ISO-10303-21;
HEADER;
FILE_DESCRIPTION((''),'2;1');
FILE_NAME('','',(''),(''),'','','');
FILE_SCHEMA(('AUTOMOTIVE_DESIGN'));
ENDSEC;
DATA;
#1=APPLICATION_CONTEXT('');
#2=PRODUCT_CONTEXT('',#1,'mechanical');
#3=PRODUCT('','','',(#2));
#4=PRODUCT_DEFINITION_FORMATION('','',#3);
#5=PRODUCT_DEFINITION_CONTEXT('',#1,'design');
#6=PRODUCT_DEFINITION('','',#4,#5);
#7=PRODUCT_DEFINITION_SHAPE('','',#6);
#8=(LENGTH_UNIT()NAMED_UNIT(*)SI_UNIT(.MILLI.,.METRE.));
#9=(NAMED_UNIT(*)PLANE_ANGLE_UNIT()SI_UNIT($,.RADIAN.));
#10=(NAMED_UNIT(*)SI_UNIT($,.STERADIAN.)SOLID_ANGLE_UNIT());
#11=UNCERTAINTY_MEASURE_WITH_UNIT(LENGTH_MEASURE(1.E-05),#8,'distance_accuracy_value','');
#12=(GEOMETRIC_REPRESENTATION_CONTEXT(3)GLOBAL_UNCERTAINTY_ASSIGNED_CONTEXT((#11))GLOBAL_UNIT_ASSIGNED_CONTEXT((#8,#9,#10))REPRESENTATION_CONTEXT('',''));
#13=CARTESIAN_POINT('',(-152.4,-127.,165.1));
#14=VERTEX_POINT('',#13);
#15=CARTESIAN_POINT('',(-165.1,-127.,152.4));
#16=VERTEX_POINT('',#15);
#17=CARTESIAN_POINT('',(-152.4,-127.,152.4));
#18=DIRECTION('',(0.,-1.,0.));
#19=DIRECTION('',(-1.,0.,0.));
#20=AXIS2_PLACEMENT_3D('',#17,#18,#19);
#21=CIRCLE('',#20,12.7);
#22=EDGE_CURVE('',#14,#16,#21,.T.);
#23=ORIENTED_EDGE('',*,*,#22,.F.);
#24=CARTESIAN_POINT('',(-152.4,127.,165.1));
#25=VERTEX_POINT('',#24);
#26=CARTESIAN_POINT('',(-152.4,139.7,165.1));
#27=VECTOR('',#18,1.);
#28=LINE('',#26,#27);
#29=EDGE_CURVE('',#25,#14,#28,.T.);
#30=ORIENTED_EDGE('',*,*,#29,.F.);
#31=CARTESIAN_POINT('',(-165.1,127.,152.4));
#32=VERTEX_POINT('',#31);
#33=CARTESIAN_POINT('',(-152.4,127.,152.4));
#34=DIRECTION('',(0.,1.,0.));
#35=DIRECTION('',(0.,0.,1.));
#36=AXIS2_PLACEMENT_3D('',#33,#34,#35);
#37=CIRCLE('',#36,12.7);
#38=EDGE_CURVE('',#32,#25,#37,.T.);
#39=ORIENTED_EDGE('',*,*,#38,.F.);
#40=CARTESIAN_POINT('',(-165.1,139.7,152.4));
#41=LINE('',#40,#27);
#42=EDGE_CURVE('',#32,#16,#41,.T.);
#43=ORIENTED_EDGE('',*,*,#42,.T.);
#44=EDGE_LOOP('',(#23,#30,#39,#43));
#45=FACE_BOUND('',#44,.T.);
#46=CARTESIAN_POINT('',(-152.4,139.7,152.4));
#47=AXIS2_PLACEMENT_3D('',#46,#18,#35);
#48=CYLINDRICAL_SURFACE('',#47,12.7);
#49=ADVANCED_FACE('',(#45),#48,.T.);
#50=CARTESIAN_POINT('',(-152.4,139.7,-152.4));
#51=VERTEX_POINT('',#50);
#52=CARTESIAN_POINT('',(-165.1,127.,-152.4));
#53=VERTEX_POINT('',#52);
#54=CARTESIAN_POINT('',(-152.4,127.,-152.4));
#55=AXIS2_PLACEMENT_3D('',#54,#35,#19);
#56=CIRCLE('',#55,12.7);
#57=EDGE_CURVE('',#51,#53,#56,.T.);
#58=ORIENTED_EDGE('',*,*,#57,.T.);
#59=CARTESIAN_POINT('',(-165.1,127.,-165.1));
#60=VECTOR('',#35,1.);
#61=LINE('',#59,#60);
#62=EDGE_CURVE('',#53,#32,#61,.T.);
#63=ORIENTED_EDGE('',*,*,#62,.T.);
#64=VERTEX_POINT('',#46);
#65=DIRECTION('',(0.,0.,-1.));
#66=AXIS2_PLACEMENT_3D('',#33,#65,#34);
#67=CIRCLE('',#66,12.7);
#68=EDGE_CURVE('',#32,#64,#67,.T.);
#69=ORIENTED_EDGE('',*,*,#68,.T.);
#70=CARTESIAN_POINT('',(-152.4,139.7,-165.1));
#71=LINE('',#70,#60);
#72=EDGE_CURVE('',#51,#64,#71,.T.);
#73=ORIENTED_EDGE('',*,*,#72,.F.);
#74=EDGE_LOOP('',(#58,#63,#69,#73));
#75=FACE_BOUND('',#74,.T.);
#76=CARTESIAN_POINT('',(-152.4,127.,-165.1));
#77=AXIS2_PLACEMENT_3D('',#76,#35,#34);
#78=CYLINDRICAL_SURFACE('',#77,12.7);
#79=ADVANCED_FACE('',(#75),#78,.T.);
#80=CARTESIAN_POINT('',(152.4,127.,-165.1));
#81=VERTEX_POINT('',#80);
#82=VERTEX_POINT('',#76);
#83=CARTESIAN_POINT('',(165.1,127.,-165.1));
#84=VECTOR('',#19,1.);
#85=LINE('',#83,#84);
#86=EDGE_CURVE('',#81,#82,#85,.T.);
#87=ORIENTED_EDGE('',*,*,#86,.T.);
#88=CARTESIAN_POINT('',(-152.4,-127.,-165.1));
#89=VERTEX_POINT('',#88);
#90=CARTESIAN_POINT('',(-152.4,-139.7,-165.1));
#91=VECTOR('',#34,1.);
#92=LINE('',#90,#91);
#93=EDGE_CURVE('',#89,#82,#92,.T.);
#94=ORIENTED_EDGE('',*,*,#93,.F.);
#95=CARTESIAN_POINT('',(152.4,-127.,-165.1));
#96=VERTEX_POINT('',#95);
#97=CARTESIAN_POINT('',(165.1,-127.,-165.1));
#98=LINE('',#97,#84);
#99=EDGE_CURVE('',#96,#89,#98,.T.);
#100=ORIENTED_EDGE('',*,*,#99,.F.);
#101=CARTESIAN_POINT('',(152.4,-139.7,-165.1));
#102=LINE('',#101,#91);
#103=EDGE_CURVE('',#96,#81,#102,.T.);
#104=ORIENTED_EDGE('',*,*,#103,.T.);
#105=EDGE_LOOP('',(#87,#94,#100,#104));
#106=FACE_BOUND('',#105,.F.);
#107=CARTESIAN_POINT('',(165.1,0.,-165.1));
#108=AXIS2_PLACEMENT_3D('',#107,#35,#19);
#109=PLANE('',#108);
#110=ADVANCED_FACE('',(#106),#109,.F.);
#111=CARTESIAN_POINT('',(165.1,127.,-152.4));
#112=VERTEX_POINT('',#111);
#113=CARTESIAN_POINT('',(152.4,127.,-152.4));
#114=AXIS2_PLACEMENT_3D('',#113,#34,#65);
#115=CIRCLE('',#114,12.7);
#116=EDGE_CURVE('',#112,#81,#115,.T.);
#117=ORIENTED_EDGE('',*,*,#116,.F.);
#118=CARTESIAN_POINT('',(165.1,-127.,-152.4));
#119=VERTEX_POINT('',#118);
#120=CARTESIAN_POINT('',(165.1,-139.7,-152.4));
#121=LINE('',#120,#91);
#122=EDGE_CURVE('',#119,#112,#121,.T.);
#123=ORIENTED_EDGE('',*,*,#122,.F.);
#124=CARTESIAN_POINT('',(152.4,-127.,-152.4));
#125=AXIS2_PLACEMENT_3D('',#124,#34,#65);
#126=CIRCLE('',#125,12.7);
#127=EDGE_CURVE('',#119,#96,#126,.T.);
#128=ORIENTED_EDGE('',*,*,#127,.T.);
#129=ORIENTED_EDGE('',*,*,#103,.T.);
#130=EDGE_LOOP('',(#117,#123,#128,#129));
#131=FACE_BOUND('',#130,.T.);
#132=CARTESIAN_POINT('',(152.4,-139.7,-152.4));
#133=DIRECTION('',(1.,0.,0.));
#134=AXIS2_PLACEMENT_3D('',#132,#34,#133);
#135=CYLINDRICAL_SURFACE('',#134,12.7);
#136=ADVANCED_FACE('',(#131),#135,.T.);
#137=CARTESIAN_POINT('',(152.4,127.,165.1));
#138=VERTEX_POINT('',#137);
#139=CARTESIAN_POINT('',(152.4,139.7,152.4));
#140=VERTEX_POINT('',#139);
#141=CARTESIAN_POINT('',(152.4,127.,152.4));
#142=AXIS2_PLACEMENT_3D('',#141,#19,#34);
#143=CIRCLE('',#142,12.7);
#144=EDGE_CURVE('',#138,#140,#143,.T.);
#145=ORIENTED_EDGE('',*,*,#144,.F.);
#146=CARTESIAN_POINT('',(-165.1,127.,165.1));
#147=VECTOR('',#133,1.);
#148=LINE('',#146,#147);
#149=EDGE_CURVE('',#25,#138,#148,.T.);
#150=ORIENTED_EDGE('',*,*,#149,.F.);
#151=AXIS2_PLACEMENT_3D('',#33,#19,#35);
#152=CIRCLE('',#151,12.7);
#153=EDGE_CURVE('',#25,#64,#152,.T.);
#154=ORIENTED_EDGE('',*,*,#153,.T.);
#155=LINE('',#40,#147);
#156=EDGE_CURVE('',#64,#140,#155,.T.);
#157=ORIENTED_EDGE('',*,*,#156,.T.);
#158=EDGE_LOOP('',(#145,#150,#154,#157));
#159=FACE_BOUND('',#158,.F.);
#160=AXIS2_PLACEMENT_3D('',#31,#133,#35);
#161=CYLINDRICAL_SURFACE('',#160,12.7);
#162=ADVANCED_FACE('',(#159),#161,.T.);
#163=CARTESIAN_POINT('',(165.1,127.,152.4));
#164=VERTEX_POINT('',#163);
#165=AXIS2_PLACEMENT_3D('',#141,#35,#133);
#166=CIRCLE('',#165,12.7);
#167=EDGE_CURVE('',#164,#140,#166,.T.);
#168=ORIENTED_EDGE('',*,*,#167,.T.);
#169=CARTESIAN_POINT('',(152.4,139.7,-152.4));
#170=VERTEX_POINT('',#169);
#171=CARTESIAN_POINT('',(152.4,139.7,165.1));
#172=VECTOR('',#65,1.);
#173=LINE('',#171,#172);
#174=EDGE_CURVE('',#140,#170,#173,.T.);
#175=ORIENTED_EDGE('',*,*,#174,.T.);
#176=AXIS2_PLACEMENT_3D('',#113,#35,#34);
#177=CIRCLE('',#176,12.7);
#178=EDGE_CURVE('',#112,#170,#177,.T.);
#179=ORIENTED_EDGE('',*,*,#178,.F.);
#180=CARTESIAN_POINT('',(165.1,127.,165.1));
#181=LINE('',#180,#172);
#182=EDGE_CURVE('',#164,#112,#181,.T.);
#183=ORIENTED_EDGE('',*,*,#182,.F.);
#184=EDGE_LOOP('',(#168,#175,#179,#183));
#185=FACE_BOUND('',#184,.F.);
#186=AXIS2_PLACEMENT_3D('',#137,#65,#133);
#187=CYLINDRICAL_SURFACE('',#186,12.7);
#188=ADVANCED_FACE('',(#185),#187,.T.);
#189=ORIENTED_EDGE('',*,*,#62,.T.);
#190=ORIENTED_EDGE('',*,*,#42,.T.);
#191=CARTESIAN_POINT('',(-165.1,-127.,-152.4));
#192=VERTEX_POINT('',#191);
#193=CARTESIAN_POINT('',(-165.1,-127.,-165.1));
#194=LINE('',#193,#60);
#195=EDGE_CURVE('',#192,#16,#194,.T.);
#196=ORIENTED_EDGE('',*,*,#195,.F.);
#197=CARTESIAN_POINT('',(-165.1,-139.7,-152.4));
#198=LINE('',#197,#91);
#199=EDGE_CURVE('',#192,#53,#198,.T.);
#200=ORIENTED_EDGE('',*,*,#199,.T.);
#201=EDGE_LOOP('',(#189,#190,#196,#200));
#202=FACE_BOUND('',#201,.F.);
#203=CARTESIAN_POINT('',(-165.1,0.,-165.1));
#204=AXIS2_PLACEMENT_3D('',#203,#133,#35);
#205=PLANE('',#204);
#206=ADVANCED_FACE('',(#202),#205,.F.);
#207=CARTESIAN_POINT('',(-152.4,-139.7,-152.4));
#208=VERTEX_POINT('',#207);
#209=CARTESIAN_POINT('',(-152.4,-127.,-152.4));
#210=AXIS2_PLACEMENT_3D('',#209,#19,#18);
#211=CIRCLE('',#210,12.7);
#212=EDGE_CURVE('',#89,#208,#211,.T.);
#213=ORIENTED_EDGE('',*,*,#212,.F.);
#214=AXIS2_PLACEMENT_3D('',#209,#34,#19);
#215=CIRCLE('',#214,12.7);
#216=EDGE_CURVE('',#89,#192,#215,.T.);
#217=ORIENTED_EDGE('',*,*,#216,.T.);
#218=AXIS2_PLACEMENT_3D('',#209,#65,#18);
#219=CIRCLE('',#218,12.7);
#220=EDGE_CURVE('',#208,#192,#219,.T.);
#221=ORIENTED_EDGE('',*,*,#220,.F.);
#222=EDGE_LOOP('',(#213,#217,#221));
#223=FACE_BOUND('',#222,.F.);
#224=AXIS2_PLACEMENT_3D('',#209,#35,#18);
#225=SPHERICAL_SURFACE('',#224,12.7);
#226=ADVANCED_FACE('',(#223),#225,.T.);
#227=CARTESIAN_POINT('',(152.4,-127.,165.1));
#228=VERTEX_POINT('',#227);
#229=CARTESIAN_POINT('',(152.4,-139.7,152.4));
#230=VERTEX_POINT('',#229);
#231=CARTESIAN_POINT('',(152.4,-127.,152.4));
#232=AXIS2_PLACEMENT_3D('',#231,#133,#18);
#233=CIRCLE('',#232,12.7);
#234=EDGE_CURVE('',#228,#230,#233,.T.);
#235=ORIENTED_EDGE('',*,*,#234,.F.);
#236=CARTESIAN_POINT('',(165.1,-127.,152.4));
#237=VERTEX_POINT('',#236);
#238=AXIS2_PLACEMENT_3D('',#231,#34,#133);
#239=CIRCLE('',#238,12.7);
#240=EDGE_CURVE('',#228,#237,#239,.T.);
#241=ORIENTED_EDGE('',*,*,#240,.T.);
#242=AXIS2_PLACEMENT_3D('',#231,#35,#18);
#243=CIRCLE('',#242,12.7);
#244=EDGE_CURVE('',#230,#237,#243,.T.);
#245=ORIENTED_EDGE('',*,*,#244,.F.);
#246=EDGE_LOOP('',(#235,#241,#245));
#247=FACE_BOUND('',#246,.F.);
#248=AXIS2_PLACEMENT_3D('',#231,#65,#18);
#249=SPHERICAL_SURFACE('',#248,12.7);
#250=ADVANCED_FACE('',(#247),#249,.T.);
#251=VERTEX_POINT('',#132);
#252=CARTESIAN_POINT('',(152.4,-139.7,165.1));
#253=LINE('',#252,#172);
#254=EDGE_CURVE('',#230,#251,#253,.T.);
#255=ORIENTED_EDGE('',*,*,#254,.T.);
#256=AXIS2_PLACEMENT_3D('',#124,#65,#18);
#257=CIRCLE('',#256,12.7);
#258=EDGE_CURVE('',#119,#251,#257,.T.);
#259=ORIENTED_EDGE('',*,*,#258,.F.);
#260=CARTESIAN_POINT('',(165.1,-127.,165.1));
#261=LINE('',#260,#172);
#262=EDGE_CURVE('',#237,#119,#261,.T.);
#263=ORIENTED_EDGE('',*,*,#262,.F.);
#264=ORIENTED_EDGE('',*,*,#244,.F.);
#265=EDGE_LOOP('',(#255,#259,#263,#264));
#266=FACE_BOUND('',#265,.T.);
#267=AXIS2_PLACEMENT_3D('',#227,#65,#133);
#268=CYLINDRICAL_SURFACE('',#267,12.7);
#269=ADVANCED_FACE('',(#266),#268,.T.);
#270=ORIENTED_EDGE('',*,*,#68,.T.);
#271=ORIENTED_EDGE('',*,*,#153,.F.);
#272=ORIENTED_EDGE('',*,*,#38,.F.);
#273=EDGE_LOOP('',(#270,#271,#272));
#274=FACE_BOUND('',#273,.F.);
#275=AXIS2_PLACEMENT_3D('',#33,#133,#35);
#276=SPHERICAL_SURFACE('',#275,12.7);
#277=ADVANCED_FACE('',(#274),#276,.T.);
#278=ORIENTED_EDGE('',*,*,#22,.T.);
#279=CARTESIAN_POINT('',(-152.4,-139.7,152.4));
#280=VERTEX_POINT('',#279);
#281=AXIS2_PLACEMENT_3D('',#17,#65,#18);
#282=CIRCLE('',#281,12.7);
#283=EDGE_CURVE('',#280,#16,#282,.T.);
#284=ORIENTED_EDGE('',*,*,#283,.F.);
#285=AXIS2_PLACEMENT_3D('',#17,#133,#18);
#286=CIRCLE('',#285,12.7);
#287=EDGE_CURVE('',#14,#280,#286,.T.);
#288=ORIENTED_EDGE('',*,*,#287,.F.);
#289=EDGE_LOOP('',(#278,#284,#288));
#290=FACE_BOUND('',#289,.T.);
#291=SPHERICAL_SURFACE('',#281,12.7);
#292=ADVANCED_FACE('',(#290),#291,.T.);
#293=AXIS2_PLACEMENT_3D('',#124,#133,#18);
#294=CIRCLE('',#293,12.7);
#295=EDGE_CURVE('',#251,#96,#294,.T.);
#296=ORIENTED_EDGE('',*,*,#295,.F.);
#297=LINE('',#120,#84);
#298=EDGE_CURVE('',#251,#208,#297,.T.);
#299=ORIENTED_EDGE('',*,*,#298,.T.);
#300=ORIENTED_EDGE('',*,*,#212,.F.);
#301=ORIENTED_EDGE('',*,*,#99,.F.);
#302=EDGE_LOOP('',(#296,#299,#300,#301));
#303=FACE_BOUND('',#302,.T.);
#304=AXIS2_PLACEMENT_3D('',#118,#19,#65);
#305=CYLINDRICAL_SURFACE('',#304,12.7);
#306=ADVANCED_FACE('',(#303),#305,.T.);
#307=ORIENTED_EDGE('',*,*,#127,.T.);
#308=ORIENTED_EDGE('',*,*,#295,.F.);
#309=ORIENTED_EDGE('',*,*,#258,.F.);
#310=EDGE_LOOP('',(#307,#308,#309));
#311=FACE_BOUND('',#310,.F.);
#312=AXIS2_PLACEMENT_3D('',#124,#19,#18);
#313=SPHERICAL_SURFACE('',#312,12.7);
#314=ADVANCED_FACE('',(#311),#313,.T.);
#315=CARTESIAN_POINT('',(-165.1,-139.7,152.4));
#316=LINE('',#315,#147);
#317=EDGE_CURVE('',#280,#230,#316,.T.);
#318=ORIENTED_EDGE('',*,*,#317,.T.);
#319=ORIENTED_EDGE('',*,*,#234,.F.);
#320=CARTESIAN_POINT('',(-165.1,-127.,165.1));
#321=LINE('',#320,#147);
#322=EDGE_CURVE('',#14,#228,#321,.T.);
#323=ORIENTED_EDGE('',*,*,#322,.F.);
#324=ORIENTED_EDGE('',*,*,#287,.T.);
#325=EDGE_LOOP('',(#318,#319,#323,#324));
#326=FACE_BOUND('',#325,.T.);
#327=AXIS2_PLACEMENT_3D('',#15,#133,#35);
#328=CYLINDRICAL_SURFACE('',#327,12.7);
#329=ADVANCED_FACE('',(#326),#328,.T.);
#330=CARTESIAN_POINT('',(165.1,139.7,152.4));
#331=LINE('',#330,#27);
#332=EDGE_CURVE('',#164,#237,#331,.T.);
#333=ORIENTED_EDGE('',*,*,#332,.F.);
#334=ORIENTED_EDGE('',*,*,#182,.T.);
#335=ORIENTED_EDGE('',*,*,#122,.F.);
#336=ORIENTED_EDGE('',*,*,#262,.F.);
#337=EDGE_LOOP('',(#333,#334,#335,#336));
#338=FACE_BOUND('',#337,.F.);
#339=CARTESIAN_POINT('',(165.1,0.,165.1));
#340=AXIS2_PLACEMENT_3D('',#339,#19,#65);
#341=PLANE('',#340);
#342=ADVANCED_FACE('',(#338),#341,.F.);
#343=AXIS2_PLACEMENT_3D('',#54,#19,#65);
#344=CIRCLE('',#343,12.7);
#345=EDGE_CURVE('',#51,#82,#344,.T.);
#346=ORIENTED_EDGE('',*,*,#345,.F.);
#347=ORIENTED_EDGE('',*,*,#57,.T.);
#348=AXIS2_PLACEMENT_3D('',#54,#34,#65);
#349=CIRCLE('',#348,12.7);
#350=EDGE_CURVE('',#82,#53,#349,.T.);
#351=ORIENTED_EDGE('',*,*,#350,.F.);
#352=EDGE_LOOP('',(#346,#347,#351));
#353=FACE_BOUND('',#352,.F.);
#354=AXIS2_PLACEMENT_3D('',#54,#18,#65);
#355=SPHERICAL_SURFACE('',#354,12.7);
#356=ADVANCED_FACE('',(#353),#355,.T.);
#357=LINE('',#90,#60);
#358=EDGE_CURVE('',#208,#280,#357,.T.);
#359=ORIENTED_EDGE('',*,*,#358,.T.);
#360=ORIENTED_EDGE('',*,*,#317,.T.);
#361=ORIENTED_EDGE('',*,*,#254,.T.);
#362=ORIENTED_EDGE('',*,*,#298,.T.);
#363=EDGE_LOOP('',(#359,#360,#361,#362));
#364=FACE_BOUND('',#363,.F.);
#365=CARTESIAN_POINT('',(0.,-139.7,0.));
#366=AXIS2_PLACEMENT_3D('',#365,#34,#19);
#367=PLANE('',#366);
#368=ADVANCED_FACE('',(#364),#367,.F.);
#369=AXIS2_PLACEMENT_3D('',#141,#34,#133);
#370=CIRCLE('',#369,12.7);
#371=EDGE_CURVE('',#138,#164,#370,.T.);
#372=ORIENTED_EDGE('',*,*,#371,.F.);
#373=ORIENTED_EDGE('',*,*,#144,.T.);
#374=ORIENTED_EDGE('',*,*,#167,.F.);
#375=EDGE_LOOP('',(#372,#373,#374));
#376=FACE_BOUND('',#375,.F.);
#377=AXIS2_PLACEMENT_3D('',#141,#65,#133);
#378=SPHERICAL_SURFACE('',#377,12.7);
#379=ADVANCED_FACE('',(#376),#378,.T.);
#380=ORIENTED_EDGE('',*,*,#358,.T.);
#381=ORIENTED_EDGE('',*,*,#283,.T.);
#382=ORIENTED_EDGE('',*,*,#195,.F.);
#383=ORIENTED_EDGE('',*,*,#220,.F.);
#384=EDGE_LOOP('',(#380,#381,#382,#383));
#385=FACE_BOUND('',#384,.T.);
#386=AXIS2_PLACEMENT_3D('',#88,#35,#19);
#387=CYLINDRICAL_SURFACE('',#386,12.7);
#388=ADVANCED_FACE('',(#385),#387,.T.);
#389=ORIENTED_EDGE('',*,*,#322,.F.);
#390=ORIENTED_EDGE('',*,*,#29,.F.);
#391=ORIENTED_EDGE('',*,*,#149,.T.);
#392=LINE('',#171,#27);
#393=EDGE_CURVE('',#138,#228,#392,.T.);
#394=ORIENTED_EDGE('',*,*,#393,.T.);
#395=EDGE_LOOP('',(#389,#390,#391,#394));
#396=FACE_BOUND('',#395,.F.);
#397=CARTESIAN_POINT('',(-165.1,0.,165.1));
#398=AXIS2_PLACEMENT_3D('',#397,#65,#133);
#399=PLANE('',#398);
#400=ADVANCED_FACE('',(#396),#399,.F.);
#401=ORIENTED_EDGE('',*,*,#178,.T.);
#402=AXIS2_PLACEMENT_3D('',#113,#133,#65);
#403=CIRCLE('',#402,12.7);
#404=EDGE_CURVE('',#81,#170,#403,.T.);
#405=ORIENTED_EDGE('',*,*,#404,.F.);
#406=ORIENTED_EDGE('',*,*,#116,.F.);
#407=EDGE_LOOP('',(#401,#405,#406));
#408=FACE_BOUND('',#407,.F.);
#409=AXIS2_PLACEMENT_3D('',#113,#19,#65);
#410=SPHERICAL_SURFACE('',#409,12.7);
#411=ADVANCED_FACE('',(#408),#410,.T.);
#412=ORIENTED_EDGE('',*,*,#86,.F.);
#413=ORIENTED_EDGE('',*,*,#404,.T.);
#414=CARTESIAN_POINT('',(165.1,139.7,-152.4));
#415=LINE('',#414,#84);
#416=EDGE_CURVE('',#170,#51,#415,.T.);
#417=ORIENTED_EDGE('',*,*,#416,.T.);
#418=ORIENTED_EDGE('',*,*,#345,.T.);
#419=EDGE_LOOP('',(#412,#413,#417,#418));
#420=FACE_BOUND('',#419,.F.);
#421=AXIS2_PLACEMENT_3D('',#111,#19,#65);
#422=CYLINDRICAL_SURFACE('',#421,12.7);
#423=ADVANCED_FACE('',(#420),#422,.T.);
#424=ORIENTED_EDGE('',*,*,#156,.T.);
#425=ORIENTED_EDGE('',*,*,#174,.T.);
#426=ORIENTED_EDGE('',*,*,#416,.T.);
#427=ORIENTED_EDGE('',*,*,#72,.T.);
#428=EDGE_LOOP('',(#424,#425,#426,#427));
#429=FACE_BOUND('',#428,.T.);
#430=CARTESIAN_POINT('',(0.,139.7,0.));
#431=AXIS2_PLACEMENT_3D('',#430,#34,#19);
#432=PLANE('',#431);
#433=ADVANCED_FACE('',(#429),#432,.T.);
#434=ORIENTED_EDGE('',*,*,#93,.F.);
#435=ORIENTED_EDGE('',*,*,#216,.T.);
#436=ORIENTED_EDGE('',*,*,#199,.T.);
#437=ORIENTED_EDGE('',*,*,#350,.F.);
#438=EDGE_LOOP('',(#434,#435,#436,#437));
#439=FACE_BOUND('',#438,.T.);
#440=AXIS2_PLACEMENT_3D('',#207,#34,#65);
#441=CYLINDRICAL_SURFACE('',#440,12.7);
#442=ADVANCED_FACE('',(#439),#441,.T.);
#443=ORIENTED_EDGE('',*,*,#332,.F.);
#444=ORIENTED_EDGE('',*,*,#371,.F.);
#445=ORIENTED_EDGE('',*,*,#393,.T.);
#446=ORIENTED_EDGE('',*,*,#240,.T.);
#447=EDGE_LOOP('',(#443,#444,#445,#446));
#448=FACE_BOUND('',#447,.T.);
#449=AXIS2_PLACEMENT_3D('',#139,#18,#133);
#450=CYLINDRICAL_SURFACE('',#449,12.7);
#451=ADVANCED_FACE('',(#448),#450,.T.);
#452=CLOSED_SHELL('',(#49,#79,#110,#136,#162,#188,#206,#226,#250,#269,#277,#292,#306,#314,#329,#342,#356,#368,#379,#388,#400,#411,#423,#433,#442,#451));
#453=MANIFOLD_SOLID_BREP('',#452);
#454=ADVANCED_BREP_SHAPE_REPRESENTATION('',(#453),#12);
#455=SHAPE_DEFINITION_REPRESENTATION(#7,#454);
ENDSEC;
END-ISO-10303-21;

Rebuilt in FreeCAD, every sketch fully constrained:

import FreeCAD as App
import Part
import Sketcher

V = App.Vector
Q = App.Units.Quantity


def add_polygon(sketch, points):
    """Adds a closed chain of lines whose ends are joined by coincident constraints."""
    first, n = sketch.GeometryCount, len(points)
    for a, b in zip(points, points[1:] + points[:1]):
        sketch.addGeometry(Part.LineSegment(App.Vector(*a, 0), App.Vector(*b, 0)), False)
    for i in range(n):
        sketch.addConstraint(Sketcher.Constraint("Coincident", first + i, 2, first + (i + 1) % n, 1))

doc = App.newDocument("Part")
params = doc.addObject("Spreadsheet::Sheet", "Params")
for row, (alias, value) in enumerate([
    ("sketch1_width", "13 in"),
    ("pad1_length", "11 in"),
    ("fillet_radius", "0.5 in"),
], start=1):
    params.set(f"A{row}", alias)
    params.set(f"B{row}", "=" + value)
    params.setAlias(f"B{row}", alias)

body = doc.addObject("PartDesign::Body", "Body")

# Sketch on XZ plane
sketch1 = body.newObject("Sketcher::SketchObject", "Sketch")
sketch1.AttachmentSupport = (doc.getObject("XZ_Plane"), [""])
sketch1.MapMode = "FlatFace"
add_polygon(sketch1, [(165, 165), (165, -165), (-165, -165), (-165, 165)])  # lines 0-3
sketch1.addConstraint(Sketcher.Constraint("Vertical", 0))
sketch1.addConstraint(Sketcher.Constraint("Horizontal", 1))
sketch1.addConstraint(Sketcher.Constraint("Vertical", 2))
sketch1.addConstraint(Sketcher.Constraint("Horizontal", 3))
sketch1.addConstraint(Sketcher.Constraint("Symmetric", 0, 2, 2, 2, -1, 1))
sketch1.addConstraint(Sketcher.Constraint("Equal", 3, 0))
sketch1.addConstraint(Sketcher.Constraint("DistanceX", 1, 2, 1, 1, Q("13 in")))
sketch1.setExpression("Constraints[10]", "Params.sketch1_width")
pad1 = body.newObject("PartDesign::Pad", "Pad")
pad1.Profile = sketch1
pad1.setExpression("Length", "Params.pad1_length")
pad1.Midplane = True
doc.recompute()

fillet = body.newObject("PartDesign::Fillet", "Fillet")
fillet.Base = (pad1, ["Edge1"])
fillet.UseAllEdges = True
fillet.setExpression("Radius", "Params.fillet_radius")

doc.recompute()
